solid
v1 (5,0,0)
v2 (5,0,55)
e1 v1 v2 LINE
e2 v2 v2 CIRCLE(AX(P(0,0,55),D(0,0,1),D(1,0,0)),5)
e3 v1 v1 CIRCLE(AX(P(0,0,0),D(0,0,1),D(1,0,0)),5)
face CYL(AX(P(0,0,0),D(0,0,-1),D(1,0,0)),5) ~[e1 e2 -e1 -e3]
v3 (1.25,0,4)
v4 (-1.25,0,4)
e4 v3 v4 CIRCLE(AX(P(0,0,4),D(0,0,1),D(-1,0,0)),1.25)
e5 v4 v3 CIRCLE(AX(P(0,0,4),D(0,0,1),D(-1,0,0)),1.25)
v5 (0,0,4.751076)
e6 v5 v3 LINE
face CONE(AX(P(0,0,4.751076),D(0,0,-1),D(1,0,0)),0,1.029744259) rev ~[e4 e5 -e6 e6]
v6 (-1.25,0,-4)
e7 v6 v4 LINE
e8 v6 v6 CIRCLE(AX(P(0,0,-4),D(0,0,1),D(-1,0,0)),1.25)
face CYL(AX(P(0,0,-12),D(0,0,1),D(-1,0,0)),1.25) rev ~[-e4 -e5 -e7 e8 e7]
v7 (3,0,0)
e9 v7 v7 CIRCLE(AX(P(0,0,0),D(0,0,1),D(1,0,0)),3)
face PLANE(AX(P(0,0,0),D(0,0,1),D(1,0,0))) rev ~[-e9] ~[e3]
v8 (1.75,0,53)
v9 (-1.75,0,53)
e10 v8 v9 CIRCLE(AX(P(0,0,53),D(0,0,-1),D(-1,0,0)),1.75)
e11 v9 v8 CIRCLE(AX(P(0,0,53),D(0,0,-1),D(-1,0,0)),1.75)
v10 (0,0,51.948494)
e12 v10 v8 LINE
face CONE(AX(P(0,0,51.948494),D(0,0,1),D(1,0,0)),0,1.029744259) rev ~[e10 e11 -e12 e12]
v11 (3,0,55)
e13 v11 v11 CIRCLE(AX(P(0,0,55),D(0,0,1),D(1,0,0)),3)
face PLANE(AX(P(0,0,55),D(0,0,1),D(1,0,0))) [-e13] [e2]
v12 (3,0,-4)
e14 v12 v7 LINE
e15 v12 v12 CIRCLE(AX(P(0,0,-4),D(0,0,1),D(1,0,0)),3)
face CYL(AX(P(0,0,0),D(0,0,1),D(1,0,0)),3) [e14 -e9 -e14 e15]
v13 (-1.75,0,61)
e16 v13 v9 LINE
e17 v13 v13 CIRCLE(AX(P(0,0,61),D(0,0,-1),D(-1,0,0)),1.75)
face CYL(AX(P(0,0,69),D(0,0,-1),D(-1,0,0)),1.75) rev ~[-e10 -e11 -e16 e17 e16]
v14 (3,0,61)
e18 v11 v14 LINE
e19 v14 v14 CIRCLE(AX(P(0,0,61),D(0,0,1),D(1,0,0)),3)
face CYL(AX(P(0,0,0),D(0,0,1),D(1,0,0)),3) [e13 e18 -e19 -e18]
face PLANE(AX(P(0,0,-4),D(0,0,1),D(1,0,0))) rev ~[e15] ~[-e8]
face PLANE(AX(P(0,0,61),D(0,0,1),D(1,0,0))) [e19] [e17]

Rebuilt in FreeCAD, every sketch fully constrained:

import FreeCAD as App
import Part
import Sketcher
Q = App.Units.Quantity

doc = App.newDocument("Part")
body = doc.addObject("PartDesign::Body", "Body")

# Sketch on XY plane
sketch1 = body.newObject("Sketcher::SketchObject", "Sketch")
sketch1.AttachmentSupport = (doc.getObject("XY_Plane"), [""])
sketch1.MapMode = "FlatFace"
sketch1.addGeometry(Part.Circle(App.Vector(0, 0, 0), App.Vector(0, 0, 1), 3), False)
sketch1.addConstraint([
    Sketcher.Constraint("Coincident", 0, 3, -1, 1),
    Sketcher.Constraint("Diameter", 0, Q("6 mm")),
])
pad1 = body.newObject("PartDesign::Pad", "Pad")
pad1.Profile = sketch1
pad1.Type = "TwoLengths"
pad1.Length = 61
pad1.Length2 = 4

# Sketch on XY plane
sketch2 = body.newObject("Sketcher::SketchObject", "Sketch001")
sketch2.AttachmentSupport = (doc.getObject("XY_Plane"), [""])
sketch2.MapMode = "FlatFace"
sketch2.addGeometry([
    Part.Circle(App.Vector(0, 0, 0), App.Vector(0, 0, 1), 5),
    Part.Circle(App.Vector(0, 0, 0), App.Vector(0, 0, 1), 3),
], False)
sketch2.addConstraint([
    Sketcher.Constraint("Coincident", 0, 3, -1, 1),
    Sketcher.Constraint("Coincident", 1, 3, -1, 1),
    Sketcher.Constraint("Diameter", 0, Q("10 mm")),
    Sketcher.Constraint("Diameter", 1, Q("6 mm")),
])
pad2 = body.newObject("PartDesign::Pad", "Pad001")
pad2.Profile = sketch2
pad2.Length = 55

# Sketch on XY plane
sketch3 = body.newObject("Sketcher::SketchObject", "Sketch002")
sketch3.AttachmentSupport = (doc.getObject("XY_Plane"), [""])
sketch3.MapMode = "FlatFace"
sketch3.AttachmentOffset = App.Placement(App.Vector(0, 0, -4), App.Rotation())
sketch3.addGeometry(Part.Circle(App.Vector(0, 0, 0), App.Vector(0, 0, 1), 1.2), False)
sketch3.addConstraint([
    Sketcher.Constraint("Coincident", 0, 3, -1, 1),
    Sketcher.Constraint("Diameter", 0, Q("2.5 mm")),
])
doc.recompute()
hole = body.newObject("PartDesign::Hole", "Hole")
hole.Profile = sketch3
hole.ThreadType = "None"
hole.Diameter = 2.5
hole.DepthType = "Dimension"
hole.Depth = 8
hole.DrillPoint = "Angled"
hole.DrillPointAngle = 118
hole.Reversed = True

# Sketch on XY plane
sketch4 = body.newObject("Sketcher::SketchObject", "Sketch003")
sketch4.AttachmentSupport = (doc.getObject("XY_Plane"), [""])
sketch4.MapMode = "FlatFace"
sketch4.AttachmentOffset = App.Placement(App.Vector(0, 0, 61), App.Rotation())
sketch4.addGeometry(Part.Circle(App.Vector(0, 0, 0), App.Vector(0, 0, 1), 1.8), False)
sketch4.addConstraint([
    Sketcher.Constraint("Coincident", 0, 3, -1, 1),
    Sketcher.Constraint("Diameter", 0, Q("3.5 mm")),
])
doc.recompute()
hole2 = body.newObject("PartDesign::Hole", "Hole001")
hole2.Profile = sketch4
hole2.ThreadType = "None"
hole2.Diameter = 3.5
hole2.DepthType = "Dimension"
hole2.Depth = 8
hole2.DrillPoint = "Angled"
hole2.DrillPointAngle = 118

doc.recompute()
